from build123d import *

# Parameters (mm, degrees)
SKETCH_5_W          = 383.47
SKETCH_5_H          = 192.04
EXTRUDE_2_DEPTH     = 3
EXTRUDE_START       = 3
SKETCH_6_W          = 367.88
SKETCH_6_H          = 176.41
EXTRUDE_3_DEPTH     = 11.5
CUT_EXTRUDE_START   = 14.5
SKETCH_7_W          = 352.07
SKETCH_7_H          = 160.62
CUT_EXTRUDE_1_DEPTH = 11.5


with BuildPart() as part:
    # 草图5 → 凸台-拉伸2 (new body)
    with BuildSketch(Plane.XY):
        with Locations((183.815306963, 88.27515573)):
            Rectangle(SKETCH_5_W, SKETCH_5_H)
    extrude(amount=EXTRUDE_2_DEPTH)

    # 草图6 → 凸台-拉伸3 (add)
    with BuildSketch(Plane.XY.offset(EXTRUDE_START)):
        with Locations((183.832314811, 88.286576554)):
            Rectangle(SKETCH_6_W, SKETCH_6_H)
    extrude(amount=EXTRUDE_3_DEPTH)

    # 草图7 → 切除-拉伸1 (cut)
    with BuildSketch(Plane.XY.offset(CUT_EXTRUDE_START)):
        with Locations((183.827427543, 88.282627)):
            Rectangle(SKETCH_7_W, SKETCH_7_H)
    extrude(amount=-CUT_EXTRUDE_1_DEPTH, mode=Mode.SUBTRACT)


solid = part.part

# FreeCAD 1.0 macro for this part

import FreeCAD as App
import Part
import Sketcher
Q = App.Units.Quantity

doc = App.newDocument("Part")
params = doc.addObject("Spreadsheet::Sheet", "Params")
for row, (alias, value) in enumerate([
    ("sketch1_width", "383.47 mm"),
    ("sketch1_height", "192.04 mm"),
    ("pad1_length", "3 mm"),
    ("sketch2_width", "367.88 mm"),
    ("sketch2_height", "176.41 mm"),
    ("pad2_length", "11.5 mm"),
    ("sketch3_width", "352.07 mm"),
    ("sketch3_height", "160.62 mm"),
    ("pocket1_length", "11.5 mm"),
], start=1):
    params.set(f"A{row}", alias)
    params.set(f"B{row}", "=" + value)
    params.setAlias(f"B{row}", alias)

body = doc.addObject("PartDesign::Body", "Body")

# Sketch on XY plane
sketch1 = body.newObject("Sketcher::SketchObject", "Sketch")
sketch1.AttachmentSupport = (doc.getObject("XY_Plane"), [""])
sketch1.MapMode = "FlatFace"
sketch1.addGeometry(Part.LineSegment(App.Vector(-8, 184, 0), App.Vector(-8, -8, 0)), False)
sketch1.addGeometry(Part.LineSegment(App.Vector(-8, -8, 0), App.Vector(376, -8, 0)), False)
sketch1.addGeometry(Part.LineSegment(App.Vector(376, -8, 0), App.Vector(376, 184, 0)), False)
sketch1.addGeometry(Part.LineSegment(App.Vector(376, 184, 0), App.Vector(-8, 184, 0)), False)
sketch1.addConstraint(Sketcher.Constraint("Coincident", 0, 2, 1, 1))
sketch1.addConstraint(Sketcher.Constraint("Coincident", 1, 2, 2, 1))
sketch1.addConstraint(Sketcher.Constraint("Coincident", 2, 2, 3, 1))
sketch1.addConstraint(Sketcher.Constraint("Coincident", 3, 2, 0, 1))
sketch1.addConstraint(Sketcher.Constraint("Vertical", 0))
sketch1.addConstraint(Sketcher.Constraint("Horizontal", 1))
sketch1.addConstraint(Sketcher.Constraint("Vertical", 2))
sketch1.addConstraint(Sketcher.Constraint("Horizontal", 3))
sketch1.addConstraint(Sketcher.Constraint("DistanceX", 1, 1, 1, 2, Q("383.47 mm")))
sketch1.addConstraint(Sketcher.Constraint("DistanceY", 0, 2, 0, 1, Q("192.04 mm")))
sketch1.addConstraint(Sketcher.Constraint("DistanceX", 0, 2, -1, 1, Q("7.919693 mm")))
sketch1.addConstraint(Sketcher.Constraint("DistanceY", 0, 2, -1, 1, Q("7.744844 mm")))
sketch1.setExpression("Constraints[8]", "Params.sketch1_width")
sketch1.setExpression("Constraints[9]", "Params.sketch1_height")
pad1 = body.newObject("PartDesign::Pad", "Pad")
pad1.Profile = sketch1
pad1.setExpression("Length", "Params.pad1_length")

# Sketch on XY plane
sketch2 = body.newObject("Sketcher::SketchObject", "Sketch001")
sketch2.AttachmentSupport = (doc.getObject("XY_Plane"), [""])
sketch2.MapMode = "FlatFace"
sketch2.AttachmentOffset = App.Placement(App.Vector(0, 0, 3), App.Rotation())
sketch2.addGeometry(Part.LineSegment(App.Vector(0, 176, 0), App.Vector(0, 0, 0)), False)
sketch2.addGeometry(Part.LineSegment(App.Vector(0, 0, 0), App.Vector(368, 0, 0)), False)
sketch2.addGeometry(Part.LineSegment(App.Vector(368, 0, 0), App.Vector(368, 176, 0)), False)
sketch2.addGeometry(Part.LineSegment(App.Vector(368, 176, 0), App.Vector(0, 176, 0)), False)
sketch2.addConstraint(Sketcher.Constraint("Coincident", 0, 2, 1, 1))
sketch2.addConstraint(Sketcher.Constraint("Coincident", 1, 2, 2, 1))
sketch2.addConstraint(Sketcher.Constraint("Coincident", 2, 2, 3, 1))
sketch2.addConstraint(Sketcher.Constraint("Coincident", 3, 2, 0, 1))
sketch2.addConstraint(Sketcher.Constraint("Vertical", 0))
sketch2.addConstraint(Sketcher.Constraint("Horizontal", 1))
sketch2.addConstraint(Sketcher.Constraint("Vertical", 2))
sketch2.addConstraint(Sketcher.Constraint("Horizontal", 3))
sketch2.addConstraint(Sketcher.Constraint("DistanceX", 1, 1, 1, 2, Q("367.88 mm")))
sketch2.addConstraint(Sketcher.Constraint("DistanceY", 0, 2, 0, 1, Q("176.41 mm")))
sketch2.addConstraint(Sketcher.Constraint("DistanceX", 0, 2, -1, 1, Q("0.107685 mm")))
sketch2.addConstraint(Sketcher.Constraint("DistanceY", -1, 1, 0, 2, Q("0.081577 mm")))
sketch2.setExpression("Constraints[8]", "Params.sketch2_width")
sketch2.setExpression("Constraints[9]", "Params.sketch2_height")
pad2 = body.newObject("PartDesign::Pad", "Pad001")
pad2.Profile = sketch2
pad2.setExpression("Length", "Params.pad2_length")

# Sketch on XY plane
sketch3 = body.newObject("Sketcher::SketchObject", "Sketch002")
sketch3.AttachmentSupport = (doc.getObject("XY_Plane"), [""])
sketch3.MapMode = "FlatFace"
sketch3.AttachmentOffset = App.Placement(App.Vector(0, 0, 14.5), App.Rotation())
sketch3.addGeometry(Part.LineSegment(App.Vector(8, 169, 0), App.Vector(8, 8, 0)), False)
sketch3.addGeometry(Part.LineSegment(App.Vector(8, 8, 0), App.Vector(360, 8, 0)), False)
sketch3.addGeometry(Part.LineSegment(App.Vector(360, 8, 0), App.Vector(360, 169, 0)), False)
sketch3.addGeometry(Part.LineSegment(App.Vector(360, 169, 0), App.Vector(8, 169, 0)), False)
sketch3.addConstraint(Sketcher.Constraint("Coincident", 0, 2, 1, 1))
sketch3.addConstraint(Sketcher.Constraint("Coincident", 1, 2, 2, 1))
sketch3.addConstraint(Sketcher.Constraint("Coincident", 2, 2, 3, 1))
sketch3.addConstraint(Sketcher.Constraint("Coincident", 3, 2, 0, 1))
sketch3.addConstraint(Sketcher.Constraint("Vertical", 0))
sketch3.addConstraint(Sketcher.Constraint("Horizontal", 1))
sketch3.addConstraint(Sketcher.Constraint("Vertical", 2))
sketch3.addConstraint(Sketcher.Constraint("Horizontal", 3))
sketch3.addConstraint(Sketcher.Constraint("DistanceX", 1, 1, 1, 2, Q("352.07 mm")))
sketch3.addConstraint(Sketcher.Constraint("DistanceY", 0, 2, 0, 1, Q("160.62 mm")))
sketch3.addConstraint(Sketcher.Constraint("DistanceX", -1, 1, 0, 2, Q("7.792428 mm")))
sketch3.addConstraint(Sketcher.Constraint("DistanceY", -1, 1, 0, 2, Q("7.972627 mm")))
sketch3.setExpression("Constraints[8]", "Params.sketch3_width")
sketch3.setExpression("Constraints[9]", "Params.sketch3_height")
pocket1 = body.newObject("PartDesign::Pocket", "Pocket")
pocket1.Profile = sketch3
pocket1.setExpression("Length", "Params.pocket1_length")

doc.recompute()
